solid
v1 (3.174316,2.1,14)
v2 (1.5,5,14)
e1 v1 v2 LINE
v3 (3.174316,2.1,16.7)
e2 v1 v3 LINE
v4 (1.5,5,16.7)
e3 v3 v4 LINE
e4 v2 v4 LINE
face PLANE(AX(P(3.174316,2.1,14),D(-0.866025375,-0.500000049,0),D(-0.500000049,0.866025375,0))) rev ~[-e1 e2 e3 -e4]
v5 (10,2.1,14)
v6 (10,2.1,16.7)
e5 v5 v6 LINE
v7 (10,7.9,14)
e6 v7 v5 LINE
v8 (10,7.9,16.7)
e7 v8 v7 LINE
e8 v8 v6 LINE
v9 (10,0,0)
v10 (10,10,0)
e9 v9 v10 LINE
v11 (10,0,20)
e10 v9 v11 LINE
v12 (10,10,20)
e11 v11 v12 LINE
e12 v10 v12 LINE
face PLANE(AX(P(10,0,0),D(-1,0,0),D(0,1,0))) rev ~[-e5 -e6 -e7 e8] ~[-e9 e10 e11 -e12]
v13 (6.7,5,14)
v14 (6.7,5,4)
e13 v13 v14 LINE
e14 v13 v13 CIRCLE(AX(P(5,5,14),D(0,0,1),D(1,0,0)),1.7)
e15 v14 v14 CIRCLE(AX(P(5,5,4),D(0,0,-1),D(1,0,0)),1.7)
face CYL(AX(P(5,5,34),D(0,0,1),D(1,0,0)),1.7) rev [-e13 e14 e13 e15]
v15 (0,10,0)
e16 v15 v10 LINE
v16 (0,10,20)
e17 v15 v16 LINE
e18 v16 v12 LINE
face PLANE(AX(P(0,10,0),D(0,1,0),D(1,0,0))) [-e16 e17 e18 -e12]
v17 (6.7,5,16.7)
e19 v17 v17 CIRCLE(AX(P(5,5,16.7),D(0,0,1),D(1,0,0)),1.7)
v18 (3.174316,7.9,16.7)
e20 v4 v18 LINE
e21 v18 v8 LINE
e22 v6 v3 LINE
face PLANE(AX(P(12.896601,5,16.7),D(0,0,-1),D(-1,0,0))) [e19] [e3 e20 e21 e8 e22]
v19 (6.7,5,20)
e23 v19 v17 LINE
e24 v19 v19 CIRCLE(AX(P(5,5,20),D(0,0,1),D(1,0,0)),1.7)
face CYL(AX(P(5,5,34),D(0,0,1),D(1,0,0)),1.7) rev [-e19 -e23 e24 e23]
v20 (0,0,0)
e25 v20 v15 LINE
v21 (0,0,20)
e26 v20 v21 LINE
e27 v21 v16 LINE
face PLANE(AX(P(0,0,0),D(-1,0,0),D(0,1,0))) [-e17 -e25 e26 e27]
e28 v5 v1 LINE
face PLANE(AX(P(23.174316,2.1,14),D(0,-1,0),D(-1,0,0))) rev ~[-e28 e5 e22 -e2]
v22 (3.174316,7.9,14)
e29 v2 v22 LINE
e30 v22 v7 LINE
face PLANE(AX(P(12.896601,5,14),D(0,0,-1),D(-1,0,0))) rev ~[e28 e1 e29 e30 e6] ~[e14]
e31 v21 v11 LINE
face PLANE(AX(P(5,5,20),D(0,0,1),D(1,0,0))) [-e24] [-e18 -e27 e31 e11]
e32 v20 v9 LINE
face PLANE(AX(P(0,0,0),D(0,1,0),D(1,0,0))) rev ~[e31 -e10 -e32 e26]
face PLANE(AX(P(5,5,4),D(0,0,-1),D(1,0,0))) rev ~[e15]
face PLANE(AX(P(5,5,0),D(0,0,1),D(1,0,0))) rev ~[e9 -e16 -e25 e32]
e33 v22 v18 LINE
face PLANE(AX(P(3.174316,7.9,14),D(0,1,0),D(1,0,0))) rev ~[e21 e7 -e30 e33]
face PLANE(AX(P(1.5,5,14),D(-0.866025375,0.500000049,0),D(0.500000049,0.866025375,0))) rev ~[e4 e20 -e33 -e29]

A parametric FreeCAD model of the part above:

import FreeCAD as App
import Part
import Sketcher

V = App.Vector
Q = App.Units.Quantity


def add_polygon(sketch, points):
    """Adds a closed chain of lines whose ends are joined by coincident constraints."""
    first, n = sketch.GeometryCount, len(points)
    for a, b in zip(points, points[1:] + points[:1]):
        sketch.addGeometry(Part.LineSegment(App.Vector(*a, 0), App.Vector(*b, 0)), False)
    for i in range(n):
        sketch.addConstraint(Sketcher.Constraint("Coincident", first + i, 2, first + (i + 1) % n, 1))

doc = App.newDocument("Part")
body = doc.addObject("PartDesign::Body", "Body")

# Sketch on XY plane
sketch1 = doc.addObject("Sketcher::SketchObject", "Sketch")
body.addObject(sketch1)
sketch1.AttachmentSupport = (doc.XY_Plane, [""])
sketch1.MapMode = "FlatFace"
add_polygon(sketch1, [(1.674316, 2.9), (0, 0), (1.674316, -2.9), (21.674316, -2.9), (21.674316, 2.9)])  # lines 0-4
sketch1.addConstraint(Sketcher.Constraint("Horizontal", 2))
sketch1.addConstraint(Sketcher.Constraint("Vertical", 3))
sketch1.addConstraint(Sketcher.Constraint("Horizontal", 4))
sketch1.addConstraint(Sketcher.Constraint("Coincident", 0, 2, -1, 1))
sketch1.addConstraint(Sketcher.Constraint("Symmetric", 1, 2, 4, 2, -1))
sketch1.addConstraint(Sketcher.Constraint("DistanceX", 2, 1, 2, 2, Q("20 mm")))
sketch1.addConstraint(Sketcher.Constraint("Angle", 0, Q("-120.000003 deg")))
sketch1.addConstraint(Sketcher.Constraint("DistanceY", 3, 1, 3, 2, Q("5.8 mm")))
pad1 = doc.addObject("PartDesign::Pad", "Pad")
body.addObject(pad1)
pad1.Profile = sketch1
pad1.Length = 2.7
body2 = doc.addObject("PartDesign::Body", "Body001")
doc.recompute()

body.Placement = App.Placement(V(1.5, 5, 14), App.Rotation(V(0, 0, 1), 0))
boolean = doc.addObject("PartDesign::Boolean", "Boolean")
body2.addObject(boolean)
boolean.Type = "Fuse"
boolean.addObjects([body])
body3 = doc.addObject("PartDesign::Body", "Body002")

# Sketch on XY plane
sketch2 = doc.addObject("Sketcher::SketchObject", "Sketch001")
body3.addObject(sketch2)
sketch2.AttachmentSupport = (doc.getObject("XY_Plane002"), [""])
sketch2.MapMode = "FlatFace"
sketch2.addGeometry(Part.Circle(V(0, 0, 0), V(0, 0, 1), 2.95), False)
sketch2.addConstraint(Sketcher.Constraint("Coincident", 0, 3, -1, 1))
sketch2.addConstraint(Sketcher.Constraint("Diameter", 0, Q("5.9 mm")))
pad2 = doc.addObject("PartDesign::Pad", "Pad001")
body3.addObject(pad2)
pad2.Profile = sketch2
pad2.Length = 7
body4 = doc.addObject("PartDesign::Body", "Body003")

# Sketch on XY plane
sketch3 = doc.addObject("Sketcher::SketchObject", "Sketch002")
body4.addObject(sketch3)
sketch3.AttachmentSupport = (doc.getObject("XY_Plane003"), [""])
sketch3.MapMode = "FlatFace"
sketch3.AttachmentOffset = App.Placement(V(0, 0, 6), App.Rotation())
sketch3.addGeometry(Part.Circle(V(0, 0, 0), V(0, 0, 1), 1.7), False)
sketch3.addConstraint(Sketcher.Constraint("Coincident", 0, 3, -1, 1))
sketch3.addConstraint(Sketcher.Constraint("Diameter", 0, Q("3.4 mm")))
pad3 = doc.addObject("PartDesign::Pad", "Pad002")
body4.addObject(pad3)
pad3.Profile = sketch3
pad3.Length = 30
doc.recompute()

boolean2 = doc.addObject("PartDesign::Boolean", "Boolean001")
body4.addObject(boolean2)
boolean2.Type = "Fuse"
boolean2.addObjects([body3])
body5 = doc.addObject("PartDesign::Body", "Body004")
doc.recompute()

body4.Placement = App.Placement(V(5, 5, 40), App.Rotation(V(1, 0, 0), 180))
boolean3 = doc.addObject("PartDesign::Boolean", "Boolean002")
body5.addObject(boolean3)
boolean3.Type = "Fuse"
boolean3.addObjects([body4])
doc.recompute()

boolean4 = doc.addObject("PartDesign::Boolean", "Boolean003")
body5.addObject(boolean4)
boolean4.Type = "Fuse"
boolean4.addObjects([body2])
body6 = doc.addObject("PartDesign::Body", "Body005")

# Sketch on XY plane
sketch4 = doc.addObject("Sketcher::SketchObject", "Sketch003")
body6.addObject(sketch4)
sketch4.AttachmentSupport = (doc.getObject("XY_Plane005"), [""])
sketch4.MapMode = "FlatFace"
add_polygon(sketch4, [(0, 10), (0, 0), (10, 0), (10, 10)])  # lines 0-3
sketch4.addConstraint(Sketcher.Constraint("Vertical", 0))
sketch4.addConstraint(Sketcher.Constraint("Horizontal", 1))
sketch4.addConstraint(Sketcher.Constraint("Vertical", 2))
sketch4.addConstraint(Sketcher.Constraint("Horizontal", 3))
sketch4.addConstraint(Sketcher.Constraint("Coincident", 0, 2, -1, 1))
sketch4.addConstraint(Sketcher.Constraint("Equal", 3, 0))
sketch4.addConstraint(Sketcher.Constraint("DistanceX", 1, 1, 1, 2, Q("10 mm")))
pad4 = doc.addObject("PartDesign::Pad", "Pad003")
body6.addObject(pad4)
pad4.Profile = sketch4
pad4.Length = 20
doc.recompute()

boolean5 = doc.addObject("PartDesign::Boolean", "Boolean004")
body6.addObject(boolean5)
boolean5.Type = "Cut"
boolean5.addObjects([body5])

doc.recompute()
